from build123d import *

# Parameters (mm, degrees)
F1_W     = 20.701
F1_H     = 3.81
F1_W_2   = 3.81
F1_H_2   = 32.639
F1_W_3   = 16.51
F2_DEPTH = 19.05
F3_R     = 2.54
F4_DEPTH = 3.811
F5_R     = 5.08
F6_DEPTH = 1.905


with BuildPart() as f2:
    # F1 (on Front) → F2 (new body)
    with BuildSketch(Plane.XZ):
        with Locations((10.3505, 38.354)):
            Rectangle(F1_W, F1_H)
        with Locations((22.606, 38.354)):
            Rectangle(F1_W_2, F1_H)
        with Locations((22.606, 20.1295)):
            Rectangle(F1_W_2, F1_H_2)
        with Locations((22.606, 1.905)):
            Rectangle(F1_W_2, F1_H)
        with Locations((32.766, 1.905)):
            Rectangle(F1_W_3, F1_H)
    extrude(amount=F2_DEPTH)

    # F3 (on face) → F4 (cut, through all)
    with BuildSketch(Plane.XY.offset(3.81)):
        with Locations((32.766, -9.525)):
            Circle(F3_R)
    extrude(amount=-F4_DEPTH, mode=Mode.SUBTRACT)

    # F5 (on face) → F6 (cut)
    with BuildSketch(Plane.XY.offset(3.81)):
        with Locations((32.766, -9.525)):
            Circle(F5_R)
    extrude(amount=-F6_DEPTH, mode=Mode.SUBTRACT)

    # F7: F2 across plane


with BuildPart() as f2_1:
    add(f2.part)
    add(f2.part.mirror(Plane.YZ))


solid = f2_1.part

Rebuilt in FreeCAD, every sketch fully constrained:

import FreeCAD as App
import Part
import Sketcher
Q = App.Units.Quantity

doc = App.newDocument("Part")
body = doc.addObject("PartDesign::Body", "Body")

# Sketch on XZ plane
sketch1 = body.newObject("Sketcher::SketchObject", "Sketch")
sketch1.AttachmentSupport = (doc.getObject("XZ_Plane"), [""])
sketch1.MapMode = "FlatFace"
sketch1.addGeometry([
    Part.LineSegment(App.Vector(0, 40.3, 0), App.Vector(0, 36.4, 0)),  # 0
    Part.LineSegment(App.Vector(0, 36.4, 0), App.Vector(20.7, 36.4, 0)),  # 1
    Part.LineSegment(App.Vector(20.7, 36.4, 0), App.Vector(20.7, 0, 0)),  # 2
    Part.LineSegment(App.Vector(20.7, 0, 0), App.Vector(41, 0, 0)),  # 3
    Part.LineSegment(App.Vector(41, 0, 0), App.Vector(41, 3.8, 0)),  # 4
    Part.LineSegment(App.Vector(41, 3.8, 0), App.Vector(24.5, 3.8, 0)),  # 5
    Part.LineSegment(App.Vector(24.5, 3.8, 0), App.Vector(24.5, 40.3, 0)),  # 6
    Part.LineSegment(App.Vector(24.5, 40.3, 0), App.Vector(0, 40.3, 0)),  # 7
], False)
sketch1.addConstraint([
    Sketcher.Constraint("Coincident", 0, 2, 1, 1),
    Sketcher.Constraint("Coincident", 1, 2, 2, 1),
    Sketcher.Constraint("Coincident", 2, 2, 3, 1),
    Sketcher.Constraint("Coincident", 3, 2, 4, 1),
    Sketcher.Constraint("Coincident", 4, 2, 5, 1),
    Sketcher.Constraint("Coincident", 5, 2, 6, 1),
    Sketcher.Constraint("Coincident", 6, 2, 7, 1),
    Sketcher.Constraint("Coincident", 7, 2, 0, 1),
    Sketcher.Constraint("Vertical", 0),
    Sketcher.Constraint("Horizontal", 1),
    Sketcher.Constraint("Vertical", 2),
    Sketcher.Constraint("Horizontal", 3),
    Sketcher.Constraint("Vertical", 4),
    Sketcher.Constraint("Horizontal", 5),
    Sketcher.Constraint("Vertical", 6),
    Sketcher.Constraint("Horizontal", 7),
    Sketcher.Constraint("PointOnObject", 0, 2, -2),
    Sketcher.Constraint("PointOnObject", 2, 2, -1),
    Sketcher.Constraint("Equal", 0, 4),
    Sketcher.Constraint("DistanceX", 3, 1, 3, 2, Q("0.8 in")),
    Sketcher.Constraint("DistanceX", 5, 2, 5, 1, Q("0.65 in")),
    Sketcher.Constraint("DistanceY", 0, 2, 0, 1, Q("0.15 in")),
    Sketcher.Constraint("DistanceX", 1, 1, 1, 2, Q("0.815 in")),
    Sketcher.Constraint("DistanceY", 2, 2, 2, 1, Q("1.435 in")),
])
pad1 = body.newObject("PartDesign::Pad", "Pad")
pad1.Profile = sketch1
pad1.Length = Q("0.75 in")

# Sketch on XY plane
sketch2 = body.newObject("Sketcher::SketchObject", "Sketch001")
sketch2.AttachmentSupport = (doc.getObject("XY_Plane"), [""])
sketch2.MapMode = "FlatFace"
sketch2.AttachmentOffset = App.Placement(App.Vector(0, 0, 0.15 * 25.4), App.Rotation())
sketch2.addGeometry(Part.Circle(App.Vector(32.8, -9.5, 0), App.Vector(0, 0, 1), 2.5), False)
sketch2.addConstraint([
    Sketcher.Constraint("Diameter", 0, Q("0.2 in")),
    Sketcher.Constraint("DistanceX", -1, 1, 0, 3, Q("1.29 in")),
    Sketcher.Constraint("DistanceY", 0, 3, -1, 1, Q("0.375 in")),
])
pocket1 = body.newObject("PartDesign::Pocket", "Pocket")
pocket1.Profile = sketch2
pocket1.Type = "ThroughAll"

# Sketch on XY plane
sketch3 = body.newObject("Sketcher::SketchObject", "Sketch002")
sketch3.AttachmentSupport = (doc.getObject("XY_Plane"), [""])
sketch3.MapMode = "FlatFace"
sketch3.AttachmentOffset = App.Placement(App.Vector(0, 0, 0.15 * 25.4), App.Rotation())
sketch3.addGeometry(Part.Circle(App.Vector(33, -10, 0), App.Vector(0, 0, 1), 5), False)
sketch3.addConstraint([
    Sketcher.Constraint("Diameter", 0, Q("0.4 in")),
    Sketcher.Constraint("DistanceX", -1, 1, 0, 3, Q("1.29 in")),
    Sketcher.Constraint("DistanceY", 0, 3, -1, 1, Q("0.375 in")),
])
pocket2 = body.newObject("PartDesign::Pocket", "Pocket001")
pocket2.Profile = sketch3
pocket2.Length = Q("0.075 in")
body2 = doc.addObject("PartDesign::Body", "Body001")
doc.recompute()

body2.BaseFeature = body
doc.recompute()

mirroring = doc.addObject("Part::Mirroring", "Mirroring")
mirroring.Source = body
mirroring.Base = App.Vector(0, 0, 0)
mirroring.Normal = App.Vector(1, 0, 0)
body3 = doc.addObject("PartDesign::Body", "Body002")
body3.BaseFeature = mirroring
boolean = body2.newObject("PartDesign::Boolean", "Boolean")
boolean.Type = "Fuse"
boolean.addObjects([body3])
doc.recompute()
mirroring.Visibility = False

doc.recompute()
